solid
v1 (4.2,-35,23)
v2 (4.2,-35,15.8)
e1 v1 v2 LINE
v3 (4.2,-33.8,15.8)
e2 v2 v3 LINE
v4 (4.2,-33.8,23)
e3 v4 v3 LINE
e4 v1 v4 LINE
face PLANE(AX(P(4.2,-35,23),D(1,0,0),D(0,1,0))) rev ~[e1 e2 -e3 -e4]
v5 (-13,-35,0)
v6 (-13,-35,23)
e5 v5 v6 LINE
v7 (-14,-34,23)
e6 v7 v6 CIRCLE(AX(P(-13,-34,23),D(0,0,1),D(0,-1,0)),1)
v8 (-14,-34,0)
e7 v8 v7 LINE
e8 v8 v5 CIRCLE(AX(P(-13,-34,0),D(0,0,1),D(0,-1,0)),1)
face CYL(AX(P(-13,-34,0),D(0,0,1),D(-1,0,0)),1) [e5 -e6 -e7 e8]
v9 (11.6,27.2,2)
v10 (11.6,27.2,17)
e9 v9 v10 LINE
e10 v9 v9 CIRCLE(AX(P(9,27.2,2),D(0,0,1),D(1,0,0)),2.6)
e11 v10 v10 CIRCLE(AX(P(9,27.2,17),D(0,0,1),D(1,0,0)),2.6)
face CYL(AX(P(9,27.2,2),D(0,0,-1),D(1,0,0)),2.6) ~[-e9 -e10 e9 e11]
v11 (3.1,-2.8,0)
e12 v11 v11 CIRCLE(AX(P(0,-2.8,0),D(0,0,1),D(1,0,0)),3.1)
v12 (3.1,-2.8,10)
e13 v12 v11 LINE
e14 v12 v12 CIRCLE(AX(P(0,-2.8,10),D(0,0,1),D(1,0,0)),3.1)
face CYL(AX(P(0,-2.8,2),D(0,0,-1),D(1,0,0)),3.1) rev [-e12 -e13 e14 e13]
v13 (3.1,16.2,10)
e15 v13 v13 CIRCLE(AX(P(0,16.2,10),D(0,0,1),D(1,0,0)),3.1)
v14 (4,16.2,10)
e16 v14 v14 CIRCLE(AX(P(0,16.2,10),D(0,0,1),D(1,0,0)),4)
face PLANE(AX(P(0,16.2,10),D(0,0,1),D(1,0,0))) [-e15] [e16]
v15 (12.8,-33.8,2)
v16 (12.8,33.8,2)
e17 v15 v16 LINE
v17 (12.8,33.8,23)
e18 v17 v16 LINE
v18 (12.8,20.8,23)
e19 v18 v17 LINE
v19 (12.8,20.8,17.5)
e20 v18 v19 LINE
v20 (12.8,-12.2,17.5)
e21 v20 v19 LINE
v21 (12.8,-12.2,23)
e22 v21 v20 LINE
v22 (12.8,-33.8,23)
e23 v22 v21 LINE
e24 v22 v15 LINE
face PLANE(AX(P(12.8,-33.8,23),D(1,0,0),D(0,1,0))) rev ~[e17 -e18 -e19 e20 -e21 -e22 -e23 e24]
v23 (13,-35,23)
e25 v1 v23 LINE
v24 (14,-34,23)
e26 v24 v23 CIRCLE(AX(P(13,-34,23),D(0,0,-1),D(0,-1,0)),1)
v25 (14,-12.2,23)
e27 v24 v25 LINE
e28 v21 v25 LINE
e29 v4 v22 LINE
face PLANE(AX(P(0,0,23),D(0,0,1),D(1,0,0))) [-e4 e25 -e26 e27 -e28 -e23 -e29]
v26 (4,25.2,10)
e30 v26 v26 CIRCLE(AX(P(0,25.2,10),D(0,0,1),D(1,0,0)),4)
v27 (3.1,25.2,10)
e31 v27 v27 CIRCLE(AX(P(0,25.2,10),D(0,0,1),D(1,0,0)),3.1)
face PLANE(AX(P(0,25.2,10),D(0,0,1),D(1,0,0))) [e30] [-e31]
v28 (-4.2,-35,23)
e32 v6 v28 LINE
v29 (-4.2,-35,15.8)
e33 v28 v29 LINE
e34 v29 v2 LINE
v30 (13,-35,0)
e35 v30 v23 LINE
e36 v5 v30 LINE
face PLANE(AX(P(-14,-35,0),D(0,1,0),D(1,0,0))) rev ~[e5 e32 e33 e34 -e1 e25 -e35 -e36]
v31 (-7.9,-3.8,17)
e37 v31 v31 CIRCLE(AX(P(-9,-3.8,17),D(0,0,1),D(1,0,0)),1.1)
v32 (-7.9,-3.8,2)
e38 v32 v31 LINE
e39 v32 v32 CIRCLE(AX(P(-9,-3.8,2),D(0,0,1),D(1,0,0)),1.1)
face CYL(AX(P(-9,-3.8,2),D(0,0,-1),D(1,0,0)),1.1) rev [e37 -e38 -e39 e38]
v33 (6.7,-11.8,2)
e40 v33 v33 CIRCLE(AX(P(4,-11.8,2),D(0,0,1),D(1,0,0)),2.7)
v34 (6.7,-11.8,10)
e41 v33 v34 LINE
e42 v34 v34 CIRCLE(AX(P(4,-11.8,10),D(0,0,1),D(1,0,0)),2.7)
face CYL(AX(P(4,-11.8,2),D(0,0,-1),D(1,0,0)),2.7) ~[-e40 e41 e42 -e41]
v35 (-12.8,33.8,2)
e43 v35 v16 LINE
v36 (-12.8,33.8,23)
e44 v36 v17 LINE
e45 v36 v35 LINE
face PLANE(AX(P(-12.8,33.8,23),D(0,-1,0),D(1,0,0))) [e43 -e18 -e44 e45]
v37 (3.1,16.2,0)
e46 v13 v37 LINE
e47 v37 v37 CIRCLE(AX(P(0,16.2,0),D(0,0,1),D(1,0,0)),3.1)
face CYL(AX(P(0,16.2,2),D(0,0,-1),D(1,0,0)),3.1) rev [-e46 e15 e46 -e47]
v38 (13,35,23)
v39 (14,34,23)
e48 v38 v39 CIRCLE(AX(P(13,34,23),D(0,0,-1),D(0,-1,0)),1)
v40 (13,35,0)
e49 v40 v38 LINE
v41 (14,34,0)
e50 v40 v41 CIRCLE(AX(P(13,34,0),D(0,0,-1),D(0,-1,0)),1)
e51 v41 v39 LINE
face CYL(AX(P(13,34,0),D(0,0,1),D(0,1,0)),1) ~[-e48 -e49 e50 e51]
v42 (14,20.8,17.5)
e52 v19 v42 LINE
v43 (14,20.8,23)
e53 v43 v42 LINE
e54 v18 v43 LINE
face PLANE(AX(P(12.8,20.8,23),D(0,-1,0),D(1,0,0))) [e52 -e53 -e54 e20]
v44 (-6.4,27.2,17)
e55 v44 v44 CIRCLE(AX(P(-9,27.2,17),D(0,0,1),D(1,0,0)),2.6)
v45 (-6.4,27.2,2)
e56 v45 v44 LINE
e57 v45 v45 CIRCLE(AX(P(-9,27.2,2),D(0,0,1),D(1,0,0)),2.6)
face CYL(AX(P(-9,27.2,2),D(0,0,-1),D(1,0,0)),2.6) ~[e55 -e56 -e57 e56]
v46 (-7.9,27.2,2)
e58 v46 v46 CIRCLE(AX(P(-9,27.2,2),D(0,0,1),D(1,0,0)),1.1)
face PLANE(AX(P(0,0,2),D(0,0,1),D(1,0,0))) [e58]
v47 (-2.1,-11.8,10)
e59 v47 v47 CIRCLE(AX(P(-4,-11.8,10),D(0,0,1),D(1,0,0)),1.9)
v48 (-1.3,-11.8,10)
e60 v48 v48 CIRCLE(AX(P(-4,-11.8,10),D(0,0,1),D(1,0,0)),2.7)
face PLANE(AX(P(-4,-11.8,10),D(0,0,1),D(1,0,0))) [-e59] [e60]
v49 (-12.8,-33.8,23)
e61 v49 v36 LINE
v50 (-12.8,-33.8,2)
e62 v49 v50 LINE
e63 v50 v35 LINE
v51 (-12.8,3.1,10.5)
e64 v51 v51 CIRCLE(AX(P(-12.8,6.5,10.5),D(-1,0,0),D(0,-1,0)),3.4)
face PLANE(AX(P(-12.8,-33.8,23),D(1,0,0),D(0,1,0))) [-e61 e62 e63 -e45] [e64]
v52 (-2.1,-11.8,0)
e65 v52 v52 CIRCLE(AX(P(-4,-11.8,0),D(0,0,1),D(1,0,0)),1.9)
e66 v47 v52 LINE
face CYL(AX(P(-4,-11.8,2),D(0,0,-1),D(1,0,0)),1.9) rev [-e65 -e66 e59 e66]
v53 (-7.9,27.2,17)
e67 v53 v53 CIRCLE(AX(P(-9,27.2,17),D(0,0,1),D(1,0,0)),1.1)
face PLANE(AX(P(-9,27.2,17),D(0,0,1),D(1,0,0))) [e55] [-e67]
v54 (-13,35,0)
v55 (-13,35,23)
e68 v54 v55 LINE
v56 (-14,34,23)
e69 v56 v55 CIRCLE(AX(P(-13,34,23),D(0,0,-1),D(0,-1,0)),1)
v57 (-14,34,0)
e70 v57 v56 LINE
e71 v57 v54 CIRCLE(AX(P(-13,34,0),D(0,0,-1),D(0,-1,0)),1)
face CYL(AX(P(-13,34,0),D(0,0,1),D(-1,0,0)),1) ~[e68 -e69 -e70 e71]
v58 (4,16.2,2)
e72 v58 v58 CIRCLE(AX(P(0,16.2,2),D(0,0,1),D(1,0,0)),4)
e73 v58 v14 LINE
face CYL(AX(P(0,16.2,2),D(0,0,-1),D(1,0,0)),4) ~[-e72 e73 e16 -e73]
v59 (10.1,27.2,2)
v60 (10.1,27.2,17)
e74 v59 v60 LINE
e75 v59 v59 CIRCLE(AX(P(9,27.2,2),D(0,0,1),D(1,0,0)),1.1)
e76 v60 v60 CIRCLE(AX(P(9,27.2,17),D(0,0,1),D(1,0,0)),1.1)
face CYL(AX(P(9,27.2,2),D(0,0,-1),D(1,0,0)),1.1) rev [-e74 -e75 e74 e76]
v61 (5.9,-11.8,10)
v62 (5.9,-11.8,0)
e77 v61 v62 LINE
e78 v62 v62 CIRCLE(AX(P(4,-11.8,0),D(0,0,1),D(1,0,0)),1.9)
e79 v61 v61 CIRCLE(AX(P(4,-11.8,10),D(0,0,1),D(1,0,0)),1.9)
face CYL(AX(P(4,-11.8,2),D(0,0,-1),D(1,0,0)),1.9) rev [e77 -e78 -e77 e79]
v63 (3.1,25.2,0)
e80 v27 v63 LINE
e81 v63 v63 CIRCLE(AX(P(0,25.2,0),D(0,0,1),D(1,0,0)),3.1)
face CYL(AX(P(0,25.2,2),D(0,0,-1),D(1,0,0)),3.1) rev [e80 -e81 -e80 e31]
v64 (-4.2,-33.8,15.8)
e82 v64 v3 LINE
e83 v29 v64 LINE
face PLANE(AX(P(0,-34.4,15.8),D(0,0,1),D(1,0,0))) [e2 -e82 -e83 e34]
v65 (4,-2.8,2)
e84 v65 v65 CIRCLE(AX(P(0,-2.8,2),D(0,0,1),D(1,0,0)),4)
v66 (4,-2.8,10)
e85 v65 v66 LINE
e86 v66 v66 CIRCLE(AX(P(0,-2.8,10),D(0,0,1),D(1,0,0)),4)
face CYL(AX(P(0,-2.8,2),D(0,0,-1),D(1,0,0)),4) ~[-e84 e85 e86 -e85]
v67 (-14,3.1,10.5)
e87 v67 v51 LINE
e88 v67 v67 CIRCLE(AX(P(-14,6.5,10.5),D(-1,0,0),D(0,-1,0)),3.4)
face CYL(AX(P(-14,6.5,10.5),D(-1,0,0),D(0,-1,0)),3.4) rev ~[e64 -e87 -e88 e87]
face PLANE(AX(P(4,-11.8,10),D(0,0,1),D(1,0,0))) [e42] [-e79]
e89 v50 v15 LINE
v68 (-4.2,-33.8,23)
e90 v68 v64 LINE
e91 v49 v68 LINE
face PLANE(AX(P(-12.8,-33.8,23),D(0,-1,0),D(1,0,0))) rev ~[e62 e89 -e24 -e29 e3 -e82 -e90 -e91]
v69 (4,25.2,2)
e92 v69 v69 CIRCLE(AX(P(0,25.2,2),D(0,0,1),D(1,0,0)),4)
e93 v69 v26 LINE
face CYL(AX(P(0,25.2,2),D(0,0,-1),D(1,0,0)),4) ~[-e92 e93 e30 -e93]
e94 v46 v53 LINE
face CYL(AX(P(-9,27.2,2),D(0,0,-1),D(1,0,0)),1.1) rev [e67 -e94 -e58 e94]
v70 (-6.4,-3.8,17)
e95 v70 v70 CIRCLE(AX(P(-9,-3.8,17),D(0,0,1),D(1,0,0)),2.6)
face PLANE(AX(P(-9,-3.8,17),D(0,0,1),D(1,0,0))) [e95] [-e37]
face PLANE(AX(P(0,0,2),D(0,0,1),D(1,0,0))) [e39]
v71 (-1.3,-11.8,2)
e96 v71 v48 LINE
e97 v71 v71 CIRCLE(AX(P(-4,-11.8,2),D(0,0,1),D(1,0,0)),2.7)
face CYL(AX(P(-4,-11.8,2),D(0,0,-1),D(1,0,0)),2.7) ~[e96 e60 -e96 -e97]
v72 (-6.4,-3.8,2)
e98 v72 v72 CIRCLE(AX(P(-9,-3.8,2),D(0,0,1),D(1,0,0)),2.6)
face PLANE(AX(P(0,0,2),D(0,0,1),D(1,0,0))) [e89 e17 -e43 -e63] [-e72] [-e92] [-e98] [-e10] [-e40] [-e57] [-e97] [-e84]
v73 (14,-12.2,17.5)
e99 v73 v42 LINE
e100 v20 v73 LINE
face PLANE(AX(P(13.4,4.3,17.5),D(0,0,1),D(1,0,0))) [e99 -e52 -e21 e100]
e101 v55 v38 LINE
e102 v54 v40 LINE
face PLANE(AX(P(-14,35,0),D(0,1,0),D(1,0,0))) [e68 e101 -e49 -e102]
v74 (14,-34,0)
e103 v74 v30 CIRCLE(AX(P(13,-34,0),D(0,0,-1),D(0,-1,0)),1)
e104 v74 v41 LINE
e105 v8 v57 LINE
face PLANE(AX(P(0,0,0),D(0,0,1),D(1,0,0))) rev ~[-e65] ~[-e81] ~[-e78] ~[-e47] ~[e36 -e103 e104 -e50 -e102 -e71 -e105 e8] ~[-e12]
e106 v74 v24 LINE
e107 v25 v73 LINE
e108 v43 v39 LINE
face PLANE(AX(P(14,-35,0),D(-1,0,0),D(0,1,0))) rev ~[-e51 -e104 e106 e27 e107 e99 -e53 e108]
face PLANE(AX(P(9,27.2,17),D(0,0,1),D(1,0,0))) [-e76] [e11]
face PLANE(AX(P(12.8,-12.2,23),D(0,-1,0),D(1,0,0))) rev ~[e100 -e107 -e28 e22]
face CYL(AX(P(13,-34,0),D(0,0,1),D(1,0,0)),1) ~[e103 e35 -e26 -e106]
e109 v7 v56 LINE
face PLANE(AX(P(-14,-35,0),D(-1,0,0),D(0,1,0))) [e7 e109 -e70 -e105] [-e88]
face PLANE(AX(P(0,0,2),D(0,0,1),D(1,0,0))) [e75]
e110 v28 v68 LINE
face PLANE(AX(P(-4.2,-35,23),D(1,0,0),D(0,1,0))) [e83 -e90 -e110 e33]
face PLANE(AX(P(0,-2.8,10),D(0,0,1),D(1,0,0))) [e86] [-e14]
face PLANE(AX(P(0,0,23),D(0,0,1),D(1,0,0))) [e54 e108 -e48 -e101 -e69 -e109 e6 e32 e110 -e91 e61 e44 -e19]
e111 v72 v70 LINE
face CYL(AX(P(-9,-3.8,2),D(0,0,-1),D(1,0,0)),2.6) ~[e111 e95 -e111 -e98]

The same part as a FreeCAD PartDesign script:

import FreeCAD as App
import Part
import Sketcher


def edges_at(feature, points):
    """Names of the edges that pass closest to the given points."""
    edges = feature.Shape.Edges
    near = lambda p: min(range(len(edges)), key=lambda i: edges[i].distToShape(Part.Vertex(*p))[0])
    return sorted({f"Edge{near(p) + 1}" for p in points})

doc = App.newDocument("Part")
body = doc.addObject("PartDesign::Body", "Body")

sketch1 = doc.addObject("Sketcher::SketchObject", "Sketch")
body.addObject(sketch1)
sketch1.AttachmentSupport = (doc.XY_Plane, [""])
sketch1.MapMode = "FlatFace"
sketch1.addGeometry([
    Part.LineSegment(App.Vector(-14, 35, 0), App.Vector(-14, -35, 0)),
    Part.LineSegment(App.Vector(-14, -35, 0), App.Vector(14, -35, 0)),
    Part.LineSegment(App.Vector(14, -35, 0), App.Vector(14, 35, 0)),
    Part.LineSegment(App.Vector(14, 35, 0), App.Vector(-14, 35, 0)),
], False)
sketch1.addConstraint([
    Sketcher.Constraint("Coincident", 0, 2, 1, 1),
    Sketcher.Constraint("Coincident", 1, 2, 2, 1),
    Sketcher.Constraint("Coincident", 2, 2, 3, 1),
    Sketcher.Constraint("Coincident", 3, 2, 0, 1),
    Sketcher.Constraint("Vertical", 0),
    Sketcher.Constraint("Horizontal", 1),
    Sketcher.Constraint("Vertical", 2),
    Sketcher.Constraint("Horizontal", 3),
    Sketcher.Constraint("Symmetric", 0, 2, 2, 2, -1, 1),
    Sketcher.Constraint("DistanceX", 1, 1, 1, 2, 28.0),
    Sketcher.Constraint("DistanceY", 0, 2, 0, 1, 70.0),
])
pad1 = doc.addObject("PartDesign::Pad", "Pad")
body.addObject(pad1)
pad1.Profile = sketch1
pad1.Length = 23

sketch2 = doc.addObject("Sketcher::SketchObject", "Sketch001")
body.addObject(sketch2)
sketch2.AttachmentSupport = (doc.XY_Plane, [""])
sketch2.MapMode = "FlatFace"
sketch2.AttachmentOffset = App.Placement(App.Vector(0, 0, 23), App.Rotation())
sketch2.addGeometry([
    Part.LineSegment(App.Vector(-13, 34, 0), App.Vector(-13, -34, 0)),
    Part.LineSegment(App.Vector(-13, -34, 0), App.Vector(13, -34, 0)),
    Part.LineSegment(App.Vector(13, -34, 0), App.Vector(13, 34, 0)),
    Part.LineSegment(App.Vector(13, 34, 0), App.Vector(-13, 34, 0)),
], False)
sketch2.addConstraint([
    Sketcher.Constraint("Coincident", 0, 2, 1, 1),
    Sketcher.Constraint("Coincident", 1, 2, 2, 1),
    Sketcher.Constraint("Coincident", 2, 2, 3, 1),
    Sketcher.Constraint("Coincident", 3, 2, 0, 1),
    Sketcher.Constraint("Vertical", 0),
    Sketcher.Constraint("Horizontal", 1),
    Sketcher.Constraint("Vertical", 2),
    Sketcher.Constraint("Horizontal", 3),
    Sketcher.Constraint("Symmetric", 0, 2, 2, 2, -1, 1),
    Sketcher.Constraint("DistanceX", 1, 1, 1, 2, 25.6),
    Sketcher.Constraint("DistanceY", 0, 2, 0, 1, 67.6),
])
pocket1 = doc.addObject("PartDesign::Pocket", "Pocket")
body.addObject(pocket1)
pocket1.Profile = sketch2
pocket1.Length = 21

sketch3 = doc.addObject("Sketcher::SketchObject", "Sketch002")
body.addObject(sketch3)
sketch3.AttachmentSupport = (doc.XY_Plane, [""])
sketch3.MapMode = "FlatFace"
sketch3.AttachmentOffset = App.Placement(App.Vector(0, 0, 23), App.Rotation())
sketch3.addGeometry([
    Part.LineSegment(App.Vector(12.8, 20.8, 0), App.Vector(12.8, -12.2, 0)),
    Part.LineSegment(App.Vector(12.8, -12.2, 0), App.Vector(14, -12.2, 0)),
    Part.LineSegment(App.Vector(14, -12.2, 0), App.Vector(14, 20.8, 0)),
    Part.LineSegment(App.Vector(14, 20.8, 0), App.Vector(12.8, 20.8, 0)),
], False)
sketch3.addConstraint([
    Sketcher.Constraint("Coincident", 0, 2, 1, 1),
    Sketcher.Constraint("Coincident", 1, 2, 2, 1),
    Sketcher.Constraint("Coincident", 2, 2, 3, 1),
    Sketcher.Constraint("Coincident", 3, 2, 0, 1),
    Sketcher.Constraint("Vertical", 0),
    Sketcher.Constraint("Horizontal", 1),
    Sketcher.Constraint("Vertical", 2),
    Sketcher.Constraint("Horizontal", 3),
    Sketcher.Constraint("DistanceY", 0, 2, 0, 1, 33.0),
    Sketcher.Constraint("DistanceX", 1, 1, 1, 2, 1.2),
    Sketcher.Constraint("DistanceX", -1, 1, 1, 2, 14.0),
    Sketcher.Constraint("DistanceY", 0, 2, -1, 1, 12.2),
])
pocket2 = doc.addObject("PartDesign::Pocket", "Pocket001")
body.addObject(pocket2)
pocket2.Profile = sketch3
pocket2.Length = 5.5

sketch4 = doc.addObject("Sketcher::SketchObject", "Sketch003")
body.addObject(sketch4)
sketch4.AttachmentSupport = (doc.XY_Plane, [""])
sketch4.MapMode = "FlatFace"
sketch4.AttachmentOffset = App.Placement(App.Vector(0, 0, 2), App.Rotation())
sketch4.addGeometry([
    Part.Circle(App.Vector(-9, -3.8, 0), App.Vector(0, 0, 1), 2.6),
    Part.Circle(App.Vector(-9, -3.8, 0), App.Vector(0, 0, 1), 1.1),
    Part.Circle(App.Vector(-9, 27.2, 0), App.Vector(0, 0, 1), 2.6),
    Part.Circle(App.Vector(-9, 27.2, 0), App.Vector(0, 0, 1), 1.1),
    Part.Circle(App.Vector(9, 27.2, 0), App.Vector(0, 0, 1), 2.6),
    Part.Circle(App.Vector(9, 27.2, 0), App.Vector(0, 0, 1), 1.1),
], False)
sketch4.addConstraint([
    Sketcher.Constraint("Coincident", 1, 3, 0, 3),
    Sketcher.Constraint("Coincident", 3, 3, 2, 3),
    Sketcher.Constraint("Coincident", 5, 3, 4, 3),
    Sketcher.Constraint("Equal", 0, 2),
    Sketcher.Constraint("Equal", 1, 3),
    Sketcher.Constraint("Equal", 2, 4),
    Sketcher.Constraint("Equal", 3, 5),
    Sketcher.Constraint("Symmetric", 2, 3, 4, 3, -2),
    Sketcher.Constraint("Vertical", 1, 3, 2, 3),
    Sketcher.Constraint("Diameter", 0, 5.2),
    Sketcher.Constraint("Diameter", 1, 2.2),
    Sketcher.Constraint("DistanceX", 0, 3, -1, 1, 9.0),
    Sketcher.Constraint("DistanceY", 0, 3, 2, 3, 31.0),
    Sketcher.Constraint("DistanceY", 0, 3, -1, 1, 3.8),
])
pad2 = doc.addObject("PartDesign::Pad", "Pad001")
body.addObject(pad2)
pad2.Profile = sketch4
pad2.Length = 15

sketch5 = doc.addObject("Sketcher::SketchObject", "Sketch004")
body.addObject(sketch5)
sketch5.AttachmentSupport = (doc.XY_Plane, [""])
sketch5.MapMode = "FlatFace"
sketch5.AttachmentOffset = App.Placement(App.Vector(0, 0, 2), App.Rotation())
sketch5.addGeometry([
    Part.Circle(App.Vector(0, 25.2, 0), App.Vector(0, 0, 1), 3.1),
    Part.Circle(App.Vector(0, 16.2, 0), App.Vector(0, 0, 1), 3.1),
    Part.Circle(App.Vector(0, -2.8, 0), App.Vector(0, 0, 1), 3.1),
    Part.Circle(App.Vector(-4, -11.8, 0), App.Vector(0, 0, 1), 1.9),
    Part.Circle(App.Vector(4, -11.8, 0), App.Vector(0, 0, 1), 1.9),
], False)
sketch5.addConstraint([
    Sketcher.Constraint("Equal", 0, 1),
    Sketcher.Constraint("Equal", 1, 2),
    Sketcher.Constraint("Equal", 3, 4),
    Sketcher.Constraint("Symmetric", 3, 3, 4, 3, -2),
    Sketcher.Constraint("PointOnObject", 0, 3, -2),
    Sketcher.Constraint("PointOnObject", 1, 3, -2),
    Sketcher.Constraint("PointOnObject", 2, 3, -2),
    Sketcher.Constraint("Diameter", 0, 6.2),
    Sketcher.Constraint("Diameter", 3, 3.8),
    Sketcher.Constraint("DistanceX", 3, 3, -1, 1, 4.0),
    Sketcher.Constraint("DistanceY", 1, 3, 0, 3, 9.0),
    Sketcher.Constraint("DistanceY", 2, 3, 1, 3, 19.0),
    Sketcher.Constraint("DistanceY", 3, 3, 2, 3, 9.0),
    Sketcher.Constraint("DistanceY", -1, 1, 0, 3, 25.2),
])
pocket3 = doc.addObject("PartDesign::Pocket", "Pocket002")
body.addObject(pocket3)
pocket3.Profile = sketch5
pocket3.Length = 2

sketch6 = doc.addObject("Sketcher::SketchObject", "Sketch005")
body.addObject(sketch6)
sketch6.AttachmentSupport = (doc.XY_Plane, [""])
sketch6.MapMode = "FlatFace"
sketch6.AttachmentOffset = App.Placement(App.Vector(0, 0, 2), App.Rotation())
sketch6.addGeometry([
    Part.Circle(App.Vector(0, 25.2, 0), App.Vector(0, 0, 1), 4),
    Part.Circle(App.Vector(0, 25.2, 0), App.Vector(0, 0, 1), 3.1),
    Part.Circle(App.Vector(0, 16.2, 0), App.Vector(0, 0, 1), 4),
    Part.Circle(App.Vector(0, 16.2, 0), App.Vector(0, 0, 1), 3.1),
    Part.Circle(App.Vector(0, -2.8, 0), App.Vector(0, 0, 1), 4),
    Part.Circle(App.Vector(0, -2.8, 0), App.Vector(0, 0, 1), 3.1),
    Part.Circle(App.Vector(-4, -11.8, 0), App.Vector(0, 0, 1), 2.7),
    Part.Circle(App.Vector(-4, -11.8, 0), App.Vector(0, 0, 1), 1.9),
    Part.Circle(App.Vector(4, -11.8, 0), App.Vector(0, 0, 1), 2.7),
    Part.Circle(App.Vector(4, -11.8, 0), App.Vector(0, 0, 1), 1.9),
], False)
sketch6.addConstraint([
    Sketcher.Constraint("Coincident", 1, 3, 0, 3),
    Sketcher.Constraint("Coincident", 3, 3, 2, 3),
    Sketcher.Constraint("Coincident", 5, 3, 4, 3),
    Sketcher.Constraint("Coincident", 7, 3, 6, 3),
    Sketcher.Constraint("Coincident", 9, 3, 8, 3),
    Sketcher.Constraint("Equal", 0, 2),
    Sketcher.Constraint("Equal", 1, 3),
    Sketcher.Constraint("Equal", 2, 4),
    Sketcher.Constraint("Equal", 3, 5),
    Sketcher.Constraint("Equal", 6, 8),
    Sketcher.Constraint("Equal", 7, 9),
    Sketcher.Constraint("Symmetric", 6, 3, 8, 3, -2),
    Sketcher.Constraint("PointOnObject", 0, 3, -2),
    Sketcher.Constraint("PointOnObject", 2, 3, -2),
    Sketcher.Constraint("PointOnObject", 4, 3, -2),
    Sketcher.Constraint("Diameter", 0, 8.0),
    Sketcher.Constraint("Diameter", 1, 6.2),
    Sketcher.Constraint("Diameter", 6, 5.4),
    Sketcher.Constraint("Diameter", 7, 3.8),
    Sketcher.Constraint("DistanceX", 6, 3, -1, 1, 4.0),
    Sketcher.Constraint("DistanceY", 2, 3, 0, 3, 9.0),
    Sketcher.Constraint("DistanceY", 4, 3, 2, 3, 19.0),
    Sketcher.Constraint("DistanceY", 6, 3, 4, 3, 9.0),
    Sketcher.Constraint("DistanceY", -1, 1, 0, 3, 25.2),
])
pad3 = doc.addObject("PartDesign::Pad", "Pad002")
body.addObject(pad3)
pad3.Profile = sketch6
pad3.Length = 8

sketch7 = doc.addObject("Sketcher::SketchObject", "Sketch006")
body.addObject(sketch7)
sketch7.AttachmentSupport = (doc.XY_Plane, [""])
sketch7.MapMode = "FlatFace"
sketch7.AttachmentOffset = App.Placement(App.Vector(0, 0, 23), App.Rotation())
sketch7.addGeometry([
    Part.LineSegment(App.Vector(-4.2, -33.8, 0), App.Vector(-4.2, -35, 0)),
    Part.LineSegment(App.Vector(-4.2, -35, 0), App.Vector(4.2, -35, 0)),
    Part.LineSegment(App.Vector(4.2, -35, 0), App.Vector(4.2, -33.8, 0)),
    Part.LineSegment(App.Vector(4.2, -33.8, 0), App.Vector(-4.2, -33.8, 0)),
], False)
sketch7.addConstraint([
    Sketcher.Constraint("Coincident", 0, 2, 1, 1),
    Sketcher.Constraint("Coincident", 1, 2, 2, 1),
    Sketcher.Constraint("Coincident", 2, 2, 3, 1),
    Sketcher.Constraint("Coincident", 3, 2, 0, 1),
    Sketcher.Constraint("Vertical", 0),
    Sketcher.Constraint("Horizontal", 1),
    Sketcher.Constraint("Vertical", 2),
    Sketcher.Constraint("Horizontal", 3),
    Sketcher.Constraint("DistanceX", 1, 1, 1, 2, 8.4),
    Sketcher.Constraint("DistanceY", 0, 2, 0, 1, 1.2),
    Sketcher.Constraint("DistanceY", 0, 2, -1, 1, 35.0),
    Sketcher.Constraint("DistanceX", 0, 2, -1, 1, 4.2),
])
pocket4 = doc.addObject("PartDesign::Pocket", "Pocket003")
body.addObject(pocket4)
pocket4.Profile = sketch7
pocket4.Length = 7.2

sketch8 = doc.addObject("Sketcher::SketchObject", "Sketch007")
body.addObject(sketch8)
sketch8.AttachmentSupport = (doc.YZ_Plane, [""])
sketch8.MapMode = "FlatFace"
sketch8.AttachmentOffset = App.Placement(App.Vector(0, 0, -14), App.Rotation())
sketch8.addGeometry(Part.Circle(App.Vector(6.5, 10.5, 0), App.Vector(0, 0, 1), 3.4), False)
sketch8.addConstraint([
    Sketcher.Constraint("Diameter", 0, 6.8),
    Sketcher.Constraint("DistanceX", -1, 1, 0, 3, 6.5),
    Sketcher.Constraint("DistanceY", -1, 1, 0, 3, 10.5),
])
pocket5 = doc.addObject("PartDesign::Pocket", "Pocket004")
body.addObject(pocket5)
pocket5.Profile = sketch8
pocket5.Length = 2
pocket5.Reversed = True
doc.recompute()

fillet = doc.addObject("PartDesign::Fillet", "Fillet")
body.addObject(fillet)
fillet.Base = (pocket5, edges_at(pocket5, [
    (-14, 35, 11.5),
    (-14, -35, 11.5),
    (14, -35, 11.5),
    (14, 35, 11.5),
]))
fillet.Radius = 1

doc.recompute()
